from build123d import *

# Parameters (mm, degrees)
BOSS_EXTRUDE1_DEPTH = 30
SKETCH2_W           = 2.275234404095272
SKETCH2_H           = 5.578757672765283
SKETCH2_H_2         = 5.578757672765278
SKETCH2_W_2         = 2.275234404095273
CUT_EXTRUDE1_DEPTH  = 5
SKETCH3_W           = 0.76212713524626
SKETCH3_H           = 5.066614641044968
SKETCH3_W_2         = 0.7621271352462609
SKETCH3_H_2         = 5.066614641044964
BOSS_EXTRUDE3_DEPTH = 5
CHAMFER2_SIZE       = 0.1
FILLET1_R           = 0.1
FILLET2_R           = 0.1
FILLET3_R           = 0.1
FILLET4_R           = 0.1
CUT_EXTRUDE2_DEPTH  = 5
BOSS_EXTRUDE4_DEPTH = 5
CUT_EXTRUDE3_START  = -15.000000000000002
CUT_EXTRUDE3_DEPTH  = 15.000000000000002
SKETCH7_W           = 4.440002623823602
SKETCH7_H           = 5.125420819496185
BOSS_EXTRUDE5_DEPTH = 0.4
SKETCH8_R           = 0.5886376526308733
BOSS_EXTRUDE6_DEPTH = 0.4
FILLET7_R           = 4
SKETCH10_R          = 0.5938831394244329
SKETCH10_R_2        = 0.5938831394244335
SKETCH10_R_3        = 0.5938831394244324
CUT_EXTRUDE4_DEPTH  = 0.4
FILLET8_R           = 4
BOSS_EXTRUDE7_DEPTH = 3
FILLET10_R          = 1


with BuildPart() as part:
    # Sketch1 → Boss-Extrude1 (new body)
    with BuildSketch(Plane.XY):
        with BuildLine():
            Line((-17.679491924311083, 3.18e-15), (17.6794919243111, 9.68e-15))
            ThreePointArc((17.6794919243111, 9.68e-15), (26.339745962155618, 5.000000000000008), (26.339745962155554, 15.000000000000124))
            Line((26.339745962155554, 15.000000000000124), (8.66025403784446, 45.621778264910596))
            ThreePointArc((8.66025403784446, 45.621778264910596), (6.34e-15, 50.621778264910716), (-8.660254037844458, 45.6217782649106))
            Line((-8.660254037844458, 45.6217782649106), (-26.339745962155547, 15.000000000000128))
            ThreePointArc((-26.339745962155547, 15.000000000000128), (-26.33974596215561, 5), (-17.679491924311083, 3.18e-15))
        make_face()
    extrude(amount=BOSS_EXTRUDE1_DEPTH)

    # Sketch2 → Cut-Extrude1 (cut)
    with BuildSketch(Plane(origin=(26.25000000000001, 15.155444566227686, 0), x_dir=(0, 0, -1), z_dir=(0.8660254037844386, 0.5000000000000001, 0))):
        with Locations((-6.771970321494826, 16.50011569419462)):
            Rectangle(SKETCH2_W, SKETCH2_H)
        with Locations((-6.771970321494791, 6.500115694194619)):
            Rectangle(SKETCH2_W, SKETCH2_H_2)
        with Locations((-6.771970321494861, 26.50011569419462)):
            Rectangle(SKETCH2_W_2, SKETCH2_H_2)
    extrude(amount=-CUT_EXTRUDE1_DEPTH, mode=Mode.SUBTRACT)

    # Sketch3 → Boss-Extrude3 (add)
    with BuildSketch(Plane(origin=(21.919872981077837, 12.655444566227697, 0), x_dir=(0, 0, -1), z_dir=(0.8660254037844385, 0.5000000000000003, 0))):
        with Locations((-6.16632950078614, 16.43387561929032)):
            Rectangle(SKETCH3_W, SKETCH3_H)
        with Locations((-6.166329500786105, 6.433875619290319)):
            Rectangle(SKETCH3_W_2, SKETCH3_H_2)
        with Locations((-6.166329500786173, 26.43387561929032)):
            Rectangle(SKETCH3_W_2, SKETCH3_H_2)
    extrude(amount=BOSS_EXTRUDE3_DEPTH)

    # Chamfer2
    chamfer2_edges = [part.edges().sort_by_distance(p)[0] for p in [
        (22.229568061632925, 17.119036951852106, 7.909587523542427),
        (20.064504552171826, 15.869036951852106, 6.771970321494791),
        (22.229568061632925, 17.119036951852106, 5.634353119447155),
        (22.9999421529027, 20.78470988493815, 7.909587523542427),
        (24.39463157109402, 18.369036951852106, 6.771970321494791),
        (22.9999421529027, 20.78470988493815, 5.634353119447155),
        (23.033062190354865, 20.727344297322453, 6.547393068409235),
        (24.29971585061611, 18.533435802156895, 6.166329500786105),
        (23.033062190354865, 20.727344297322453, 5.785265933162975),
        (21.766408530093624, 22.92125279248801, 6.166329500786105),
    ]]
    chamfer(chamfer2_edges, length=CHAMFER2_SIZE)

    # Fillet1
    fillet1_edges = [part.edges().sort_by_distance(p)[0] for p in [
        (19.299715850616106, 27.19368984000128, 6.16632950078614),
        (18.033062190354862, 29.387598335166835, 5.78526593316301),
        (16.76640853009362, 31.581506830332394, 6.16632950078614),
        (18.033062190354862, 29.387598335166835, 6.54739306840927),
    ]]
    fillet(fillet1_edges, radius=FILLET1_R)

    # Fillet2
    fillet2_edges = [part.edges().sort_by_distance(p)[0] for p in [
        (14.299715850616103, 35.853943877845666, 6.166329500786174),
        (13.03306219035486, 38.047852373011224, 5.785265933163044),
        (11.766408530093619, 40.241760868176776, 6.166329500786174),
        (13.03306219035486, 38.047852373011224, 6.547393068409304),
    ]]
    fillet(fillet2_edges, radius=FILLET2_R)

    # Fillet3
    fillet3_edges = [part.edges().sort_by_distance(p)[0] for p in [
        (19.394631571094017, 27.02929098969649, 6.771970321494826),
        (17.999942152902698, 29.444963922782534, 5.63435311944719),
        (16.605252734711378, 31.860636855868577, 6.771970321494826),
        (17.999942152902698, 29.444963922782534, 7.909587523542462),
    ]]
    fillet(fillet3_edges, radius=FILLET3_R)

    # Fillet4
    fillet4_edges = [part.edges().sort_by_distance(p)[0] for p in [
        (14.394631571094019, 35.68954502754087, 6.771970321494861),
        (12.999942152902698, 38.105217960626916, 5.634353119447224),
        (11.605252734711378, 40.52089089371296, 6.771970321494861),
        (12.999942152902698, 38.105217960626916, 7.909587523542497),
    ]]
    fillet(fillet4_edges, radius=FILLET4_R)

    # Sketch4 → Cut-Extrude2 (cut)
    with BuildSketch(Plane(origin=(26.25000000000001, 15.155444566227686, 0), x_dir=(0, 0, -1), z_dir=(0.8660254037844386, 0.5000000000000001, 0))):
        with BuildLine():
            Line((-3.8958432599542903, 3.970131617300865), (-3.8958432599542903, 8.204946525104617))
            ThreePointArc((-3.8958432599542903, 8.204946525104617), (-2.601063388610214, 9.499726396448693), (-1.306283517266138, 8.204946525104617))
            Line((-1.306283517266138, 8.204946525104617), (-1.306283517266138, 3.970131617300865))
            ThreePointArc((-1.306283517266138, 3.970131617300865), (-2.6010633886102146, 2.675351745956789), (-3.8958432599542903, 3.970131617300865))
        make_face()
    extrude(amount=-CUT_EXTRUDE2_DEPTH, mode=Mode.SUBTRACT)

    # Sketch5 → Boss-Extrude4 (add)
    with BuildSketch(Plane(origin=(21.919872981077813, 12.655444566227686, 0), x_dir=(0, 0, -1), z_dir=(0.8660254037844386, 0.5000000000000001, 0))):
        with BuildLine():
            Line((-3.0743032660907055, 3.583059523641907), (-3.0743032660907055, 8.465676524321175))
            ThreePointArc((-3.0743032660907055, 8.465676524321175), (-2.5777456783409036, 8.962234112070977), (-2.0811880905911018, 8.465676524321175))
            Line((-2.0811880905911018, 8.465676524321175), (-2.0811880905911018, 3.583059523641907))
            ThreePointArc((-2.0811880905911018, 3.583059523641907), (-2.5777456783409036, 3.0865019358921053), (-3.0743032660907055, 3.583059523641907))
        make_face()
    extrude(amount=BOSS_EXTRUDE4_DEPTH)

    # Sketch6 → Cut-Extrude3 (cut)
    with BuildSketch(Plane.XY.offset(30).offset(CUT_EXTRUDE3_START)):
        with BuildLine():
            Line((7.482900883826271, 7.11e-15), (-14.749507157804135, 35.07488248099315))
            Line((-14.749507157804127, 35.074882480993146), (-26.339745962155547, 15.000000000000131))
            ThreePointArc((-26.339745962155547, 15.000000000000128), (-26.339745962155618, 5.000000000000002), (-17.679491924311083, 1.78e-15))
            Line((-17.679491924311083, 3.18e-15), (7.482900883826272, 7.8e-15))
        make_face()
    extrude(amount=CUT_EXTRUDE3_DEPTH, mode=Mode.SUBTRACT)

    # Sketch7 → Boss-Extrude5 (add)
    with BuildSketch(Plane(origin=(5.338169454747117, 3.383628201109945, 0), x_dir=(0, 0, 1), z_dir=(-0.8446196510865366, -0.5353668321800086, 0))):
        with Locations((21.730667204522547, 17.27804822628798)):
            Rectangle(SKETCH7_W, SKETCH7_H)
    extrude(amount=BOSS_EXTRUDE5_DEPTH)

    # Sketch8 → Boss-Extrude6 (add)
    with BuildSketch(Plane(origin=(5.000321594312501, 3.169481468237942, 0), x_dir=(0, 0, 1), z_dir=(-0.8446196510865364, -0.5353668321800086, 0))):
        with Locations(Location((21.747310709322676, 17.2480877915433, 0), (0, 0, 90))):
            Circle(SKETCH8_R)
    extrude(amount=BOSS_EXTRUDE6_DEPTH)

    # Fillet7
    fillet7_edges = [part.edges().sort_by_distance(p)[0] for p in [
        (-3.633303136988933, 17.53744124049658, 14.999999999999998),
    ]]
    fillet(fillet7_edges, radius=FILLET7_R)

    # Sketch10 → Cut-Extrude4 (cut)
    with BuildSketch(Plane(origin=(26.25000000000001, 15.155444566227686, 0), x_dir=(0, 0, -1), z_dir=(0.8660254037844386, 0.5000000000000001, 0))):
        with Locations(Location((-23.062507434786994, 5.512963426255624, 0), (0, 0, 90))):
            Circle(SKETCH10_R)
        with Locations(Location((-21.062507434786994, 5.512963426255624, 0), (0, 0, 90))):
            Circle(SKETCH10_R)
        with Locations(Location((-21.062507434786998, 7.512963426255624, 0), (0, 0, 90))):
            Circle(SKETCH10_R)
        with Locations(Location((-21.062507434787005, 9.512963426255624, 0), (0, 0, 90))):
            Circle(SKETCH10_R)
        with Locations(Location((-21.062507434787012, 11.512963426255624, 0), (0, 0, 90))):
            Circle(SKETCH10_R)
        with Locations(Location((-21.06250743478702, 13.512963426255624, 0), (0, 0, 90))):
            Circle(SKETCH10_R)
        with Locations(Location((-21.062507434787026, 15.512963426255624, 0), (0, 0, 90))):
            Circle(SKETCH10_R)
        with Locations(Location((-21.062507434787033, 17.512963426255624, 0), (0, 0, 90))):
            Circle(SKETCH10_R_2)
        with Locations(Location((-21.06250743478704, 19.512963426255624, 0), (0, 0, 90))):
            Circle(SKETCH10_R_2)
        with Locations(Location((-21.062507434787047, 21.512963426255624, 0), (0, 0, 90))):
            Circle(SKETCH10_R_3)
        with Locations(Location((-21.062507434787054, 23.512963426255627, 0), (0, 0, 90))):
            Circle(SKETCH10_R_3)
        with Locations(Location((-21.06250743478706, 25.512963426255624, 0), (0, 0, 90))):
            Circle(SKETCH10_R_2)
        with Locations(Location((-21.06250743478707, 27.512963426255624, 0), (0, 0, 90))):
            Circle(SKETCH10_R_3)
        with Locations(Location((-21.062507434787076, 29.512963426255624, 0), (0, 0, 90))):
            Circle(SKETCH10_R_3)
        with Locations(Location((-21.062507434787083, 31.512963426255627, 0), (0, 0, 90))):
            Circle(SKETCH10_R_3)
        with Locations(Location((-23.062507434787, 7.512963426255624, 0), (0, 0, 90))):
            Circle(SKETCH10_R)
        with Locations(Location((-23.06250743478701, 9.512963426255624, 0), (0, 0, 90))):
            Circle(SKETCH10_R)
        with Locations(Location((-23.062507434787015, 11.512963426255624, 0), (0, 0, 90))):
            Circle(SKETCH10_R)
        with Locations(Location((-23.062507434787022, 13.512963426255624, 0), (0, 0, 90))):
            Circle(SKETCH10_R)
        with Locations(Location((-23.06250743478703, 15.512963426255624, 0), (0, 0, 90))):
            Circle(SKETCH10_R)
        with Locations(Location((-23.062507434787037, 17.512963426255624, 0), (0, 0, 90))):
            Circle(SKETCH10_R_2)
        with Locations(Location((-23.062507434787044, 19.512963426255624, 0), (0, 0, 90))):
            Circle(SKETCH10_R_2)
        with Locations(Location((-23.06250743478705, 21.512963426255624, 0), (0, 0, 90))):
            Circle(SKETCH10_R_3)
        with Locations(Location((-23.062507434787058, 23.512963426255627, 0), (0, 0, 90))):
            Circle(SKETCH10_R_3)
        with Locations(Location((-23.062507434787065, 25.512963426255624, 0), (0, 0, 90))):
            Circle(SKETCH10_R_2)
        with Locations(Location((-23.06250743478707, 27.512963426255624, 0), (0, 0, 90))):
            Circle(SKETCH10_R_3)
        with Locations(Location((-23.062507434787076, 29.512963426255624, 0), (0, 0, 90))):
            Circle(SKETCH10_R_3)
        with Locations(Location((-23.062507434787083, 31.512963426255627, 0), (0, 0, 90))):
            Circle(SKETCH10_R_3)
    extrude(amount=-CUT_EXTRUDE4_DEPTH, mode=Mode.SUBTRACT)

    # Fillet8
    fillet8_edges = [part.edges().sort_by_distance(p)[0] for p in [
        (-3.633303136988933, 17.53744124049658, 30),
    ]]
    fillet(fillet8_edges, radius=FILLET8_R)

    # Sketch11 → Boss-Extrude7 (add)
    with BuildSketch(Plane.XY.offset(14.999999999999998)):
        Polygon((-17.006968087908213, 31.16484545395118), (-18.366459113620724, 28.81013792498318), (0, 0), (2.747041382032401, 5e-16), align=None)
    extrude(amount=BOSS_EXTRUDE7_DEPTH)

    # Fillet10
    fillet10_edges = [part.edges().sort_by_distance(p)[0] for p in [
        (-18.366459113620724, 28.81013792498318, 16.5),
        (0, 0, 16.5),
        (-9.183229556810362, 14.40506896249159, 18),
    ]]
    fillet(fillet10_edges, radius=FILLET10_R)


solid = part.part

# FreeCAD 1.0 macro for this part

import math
import FreeCAD as App
import Part
import Sketcher

V = App.Vector
Q = App.Units.Quantity


def edges_at(feature, points):
    """Names of the edges that pass closest to the given points."""
    edges = feature.Shape.Edges
    near = lambda p: min(range(len(edges)), key=lambda i: edges[i].distToShape(Part.Vertex(*p))[0])
    return sorted({f"Edge{near(p) + 1}" for p in points})


def add_polygon(sketch, points):
    """Adds a closed chain of lines whose ends are joined by coincident constraints."""
    first, n = sketch.GeometryCount, len(points)
    for a, b in zip(points, points[1:] + points[:1]):
        sketch.addGeometry(Part.LineSegment(App.Vector(*a, 0), App.Vector(*b, 0)), False)
    for i in range(n):
        sketch.addConstraint(Sketcher.Constraint("Coincident", first + i, 2, first + (i + 1) % n, 1))

doc = App.newDocument("Part")
body = doc.addObject("PartDesign::Body", "Body")

# Sketch on XY plane
sketch1 = body.newObject("Sketcher::SketchObject", "Sketch")
sketch1.AttachmentSupport = (doc.getObject("XY_Plane"), [""])
sketch1.MapMode = "FlatFace"
sketch1.addGeometry([
    Part.LineSegment(V(-18, 0, 0), V(18, 0, 0)),  # 0
    Part.ArcOfCircle(Part.Circle(V(18, 10, 0), V(0, 0, 1), 10), math.radians(-90), math.radians(30)),  # 1
    Part.LineSegment(V(26, 15, 0), V(9, 46, 0)),  # 2
    Part.ArcOfCircle(Part.Circle(V(0, 41, 0), V(0, 0, 1), 10), math.radians(30), math.radians(150)),  # 3
    Part.LineSegment(V(-9, 46, 0), V(-26, 15, 0)),  # 4
    Part.ArcOfCircle(Part.Circle(V(-18, 10, 0), V(0, 0, 1), 10), math.radians(150), math.radians(270)),  # 5
], False)
sketch1.addConstraint([
    Sketcher.Constraint("Tangent", 0, 2, 1, 1),
    Sketcher.Constraint("Tangent", 1, 2, 2, 1),
    Sketcher.Constraint("Tangent", 2, 2, 3, 1),
    Sketcher.Constraint("Tangent", 3, 2, 4, 1),
    Sketcher.Constraint("Tangent", 4, 2, 5, 1),
    Sketcher.Constraint("Tangent", 5, 2, 0, 1),
    Sketcher.Constraint("Horizontal", 0),
    Sketcher.Constraint("Equal", 1, 3),
    Sketcher.Constraint("Equal", 3, 5),
    Sketcher.Constraint("Symmetric", 0, 2, 5, 2, -1, 1),
    Sketcher.Constraint("PointOnObject", 3, 3, -2),
    Sketcher.Constraint("Radius", 1, Q("10 mm")),
    Sketcher.Constraint("Angle", 2, Q("120 deg")),
    Sketcher.Constraint("DistanceX", 3, 2, 1, 2, Q("35 mm")),
])
pad1 = body.newObject("PartDesign::Pad", "Pad")
pad1.Profile = sketch1
pad1.Length = 30

# Sketch on an angled plane
sketch2 = body.newObject("Sketcher::SketchObject", "Sketch001")
sketch2.Placement = App.Placement(V(26.25, 15.155445, 0), App.Rotation(V(0, 0, -1), V(-0.5, 0.866025404, 0), V(0.866025404, 0.5, 0), "ZXY"))
add_polygon(sketch2, [(-7.9, 19.3), (-7.9, 13.7), (-5.6, 13.7), (-5.6, 19.3)])  # lines 0-3
add_polygon(sketch2, [(-7.9, 9.3), (-7.9, 3.7), (-5.6, 3.7), (-5.6, 9.3)])  # lines 4-7
add_polygon(sketch2, [(-7.9, 29.3), (-7.9, 23.7), (-5.6, 23.7), (-5.6, 29.3)])  # lines 8-11
sketch2.addConstraint([
    Sketcher.Constraint("Vertical", 0),
    Sketcher.Constraint("Horizontal", 1),
    Sketcher.Constraint("Vertical", 2),
    Sketcher.Constraint("Horizontal", 3),
    Sketcher.Constraint("Vertical", 4),
    Sketcher.Constraint("Horizontal", 5),
    Sketcher.Constraint("Vertical", 6),
    Sketcher.Constraint("Horizontal", 7),
    Sketcher.Constraint("Vertical", 8),
    Sketcher.Constraint("Horizontal", 9),
    Sketcher.Constraint("Vertical", 10),
    Sketcher.Constraint("Horizontal", 11),
    Sketcher.Constraint("Vertical", 3, 2, 4, 2),
    Sketcher.Constraint("Vertical", 2, 2, 5, 2),
    Sketcher.Constraint("Vertical", 7, 2, 8, 2),
    Sketcher.Constraint("Vertical", 6, 2, 9, 2),
    Sketcher.Constraint("Equal", 2, 4),
    Sketcher.Constraint("Equal", 6, 8),
    Sketcher.Constraint("DistanceY", 4, 2, 0, 2, Q("10 mm")),
    Sketcher.Constraint("DistanceY", 0, 2, 8, 2, Q("10 mm")),
    Sketcher.Constraint("DistanceX", 1, 1, 1, 2, Q("2.275234 mm")),
    Sketcher.Constraint("DistanceY", 0, 2, 0, 1, Q("5.578758 mm")),
    Sketcher.Constraint("DistanceX", 0, 2, -1, 1, Q("7.909588 mm")),
    Sketcher.Constraint("DistanceY", -1, 1, 0, 2, Q("13.710737 mm")),
])
pocket1 = body.newObject("PartDesign::Pocket", "Pocket")
pocket1.Profile = sketch2
pocket1.Length = 5

# Sketch on an angled plane
sketch3 = body.newObject("Sketcher::SketchObject", "Sketch002")
sketch3.Placement = App.Placement(V(21.919873, 12.655445, 0), App.Rotation(V(0, 0, -1), V(-0.5, 0.866025404, 0), V(0.866025404, 0.5, 0), "ZXY"))
add_polygon(sketch3, [(-6.5, 19), (-6.5, 13.9), (-5.8, 13.9), (-5.8, 19)])  # lines 0-3
add_polygon(sketch3, [(-6.5, 9), (-6.5, 3.9), (-5.8, 3.9), (-5.8, 9)])  # lines 4-7
add_polygon(sketch3, [(-6.5, 29), (-6.5, 23.9), (-5.8, 23.9), (-5.8, 29)])  # lines 8-11
sketch3.addConstraint([
    Sketcher.Constraint("Vertical", 0),
    Sketcher.Constraint("Horizontal", 1),
    Sketcher.Constraint("Vertical", 2),
    Sketcher.Constraint("Horizontal", 3),
    Sketcher.Constraint("Vertical", 4),
    Sketcher.Constraint("Horizontal", 5),
    Sketcher.Constraint("Vertical", 6),
    Sketcher.Constraint("Horizontal", 7),
    Sketcher.Constraint("Vertical", 8),
    Sketcher.Constraint("Horizontal", 9),
    Sketcher.Constraint("Vertical", 10),
    Sketcher.Constraint("Horizontal", 11),
    Sketcher.Constraint("Vertical", 3, 2, 4, 2),
    Sketcher.Constraint("Vertical", 2, 2, 5, 2),
    Sketcher.Constraint("Vertical", 7, 2, 8, 2),
    Sketcher.Constraint("Vertical", 6, 2, 9, 2),
    Sketcher.Constraint("Equal", 2, 4),
    Sketcher.Constraint("Equal", 6, 8),
    Sketcher.Constraint("DistanceY", 4, 2, 0, 2, Q("10 mm")),
    Sketcher.Constraint("DistanceY", 0, 2, 8, 2, Q("10 mm")),
    Sketcher.Constraint("DistanceX", 1, 1, 1, 2, Q("0.762127 mm")),
    Sketcher.Constraint("DistanceY", 0, 2, 0, 1, Q("5.066615 mm")),
    Sketcher.Constraint("DistanceY", -1, 1, 0, 2, Q("13.900568 mm")),
    Sketcher.Constraint("DistanceX", 0, 2, -1, 1, Q("6.547393 mm")),
])
pad2 = body.newObject("PartDesign::Pad", "Pad001")
pad2.Profile = sketch3
pad2.Length = 5
doc.recompute()

chamfer = body.newObject("PartDesign::Chamfer", "Chamfer")
chamfer.Base = (pad2, edges_at(pad2, [
    (22.23, 17.119, 7.91),
    (20.065, 15.869, 6.772),
    (22.23, 17.119, 5.634),
    (23, 20.785, 7.91),
    (24.395, 18.369, 6.772),
    (23, 20.785, 5.634),
    (23.033, 20.727, 6.547),
    (24.3, 18.533, 6.166),
    (23.033, 20.727, 5.785),
    (21.766, 22.921, 6.166),
]))
chamfer.Size = 0.1
doc.recompute()

fillet = body.newObject("PartDesign::Fillet", "Fillet")
fillet.Base = (chamfer, edges_at(chamfer, [
    (19.3, 27.194, 6.166),
    (18.033, 29.388, 5.785),
    (16.766, 31.582, 6.166),
    (18.033, 29.388, 6.547),
]))
fillet.Radius = 0.1
doc.recompute()

fillet2 = body.newObject("PartDesign::Fillet", "Fillet001")
fillet2.Base = (fillet, edges_at(fillet, [
    (14.3, 35.854, 6.166),
    (13.033, 38.048, 5.785),
    (11.766, 40.242, 6.166),
    (13.033, 38.048, 6.547),
]))
fillet2.Radius = 0.1
doc.recompute()

fillet3 = body.newObject("PartDesign::Fillet", "Fillet002")
fillet3.Base = (fillet2, edges_at(fillet2, [
    (19.395, 27.029, 6.772),
    (18, 29.445, 5.634),
    (16.605, 31.861, 6.772),
    (18, 29.445, 7.91),
]))
fillet3.Radius = 0.1
doc.recompute()

fillet4 = body.newObject("PartDesign::Fillet", "Fillet003")
fillet4.Base = (fillet3, edges_at(fillet3, [
    (14.395, 35.69, 6.772),
    (13, 38.105, 5.634),
    (11.605, 40.521, 6.772),
    (13, 38.105, 7.91),
]))
fillet4.Radius = 0.1

# Sketch on an angled plane
sketch4 = body.newObject("Sketcher::SketchObject", "Sketch003")
sketch4.Placement = App.Placement(V(26.25, 15.155445, 0), App.Rotation(V(0, 0, -1), V(-0.5, 0.866025404, 0), V(0.866025404, 0.5, 0), "ZXY"))
sketch4.addGeometry([
    Part.LineSegment(V(-3.9, 8.2, 0), V(-3.9, 4, 0)),
    Part.ArcOfCircle(Part.Circle(V(-2.6, 4, 0), V(0, 0, 1), 1.3), math.radians(180), math.radians(360)),
    Part.LineSegment(V(-1.3, 4, 0), V(-1.3, 8.2, 0)),
    Part.ArcOfCircle(Part.Circle(V(-2.6, 8.2, 0), V(0, 0, 1), 1.3), math.radians(0), math.radians(180)),
], False)
sketch4.addConstraint([
    Sketcher.Constraint("Tangent", 0, 2, 1, 1),
    Sketcher.Constraint("Tangent", 1, 2, 2, 1),
    Sketcher.Constraint("Tangent", 2, 2, 3, 1),
    Sketcher.Constraint("Tangent", 3, 2, 0, 1),
    Sketcher.Constraint("Vertical", 0),
    Sketcher.Constraint("Vertical", 2),
    Sketcher.Constraint("Radius", 1, Q("1.29478 mm")),
    Sketcher.Constraint("DistanceY", 0, 2, 0, 1, Q("4.234815 mm")),
    Sketcher.Constraint("DistanceY", -1, 1, 1, 3, Q("3.970132 mm")),
    Sketcher.Constraint("DistanceX", 1, 3, -1, 1, Q("2.601063 mm")),
])
pocket2 = body.newObject("PartDesign::Pocket", "Pocket001")
pocket2.Profile = sketch4
pocket2.Length = 5

# Sketch on an angled plane
sketch5 = body.newObject("Sketcher::SketchObject", "Sketch004")
sketch5.Placement = App.Placement(V(21.919873, 12.655445, 0), App.Rotation(V(0, 0, -1), V(-0.5, 0.866025404, 0), V(0.866025404, 0.5, 0), "ZXY"))
sketch5.addGeometry([
    Part.LineSegment(V(-3.07, 8.47, 0), V(-3.07, 3.58, 0)),
    Part.ArcOfCircle(Part.Circle(V(-2.58, 3.58, 0), V(0, 0, 1), 0.5), math.radians(180), math.radians(360)),
    Part.LineSegment(V(-2.08, 3.58, 0), V(-2.08, 8.47, 0)),
    Part.ArcOfCircle(Part.Circle(V(-2.58, 8.47, 0), V(0, 0, 1), 0.5), math.radians(0), math.radians(180)),
], False)
sketch5.addConstraint([
    Sketcher.Constraint("Tangent", 0, 2, 1, 1),
    Sketcher.Constraint("Tangent", 1, 2, 2, 1),
    Sketcher.Constraint("Tangent", 2, 2, 3, 1),
    Sketcher.Constraint("Tangent", 3, 2, 0, 1),
    Sketcher.Constraint("Vertical", 0),
    Sketcher.Constraint("Vertical", 2),
    Sketcher.Constraint("Radius", 1, Q("0.496558 mm")),
    Sketcher.Constraint("DistanceY", 0, 2, 0, 1, Q("4.882617 mm")),
    Sketcher.Constraint("DistanceY", -1, 1, 1, 3, Q("3.58306 mm")),
    Sketcher.Constraint("DistanceX", 1, 2, -1, 1, Q("2.081188 mm")),
])
pad3 = body.newObject("PartDesign::Pad", "Pad002")
pad3.Profile = sketch5
pad3.Length = 5

# Sketch on XY plane
sketch6 = body.newObject("Sketcher::SketchObject", "Sketch005")
sketch6.AttachmentSupport = (doc.getObject("XY_Plane"), [""])
sketch6.MapMode = "FlatFace"
sketch6.AttachmentOffset = App.Placement(V(0, 0, 15), App.Rotation())
sketch6.addGeometry([
    Part.LineSegment(V(7, 0, 0), V(-15, 35, 0)),
    Part.LineSegment(V(-15, 35, 0), V(-26, 15, 0)),
    Part.ArcOfCircle(Part.Circle(V(-18, 10, 0), V(0, 0, 1), 10), math.radians(150), math.radians(270)),
    Part.LineSegment(V(-18, 0, 0), V(7, 0, 0)),
], False)
sketch6.addConstraint([
    Sketcher.Constraint("Coincident", 0, 2, 1, 1),
    Sketcher.Constraint("Tangent", 1, 2, 2, 1),
    Sketcher.Constraint("Tangent", 2, 2, 3, 1),
    Sketcher.Constraint("Coincident", 3, 2, 0, 1),
    Sketcher.Constraint("Horizontal", 3),
    Sketcher.Constraint("PointOnObject", 2, 2, -1),
    Sketcher.Constraint("Radius", 2, Q("10 mm")),
    Sketcher.Constraint("Angle", 1, Q("-120 deg")),
    Sketcher.Constraint("DistanceX", -1, 1, 3, 2, Q("7.482901 mm")),
    Sketcher.Constraint("Distance", 0, Q("41.527429 mm")),
    Sketcher.Constraint("DistanceX", 3, 1, 3, 2, Q("25.162393 mm")),
])
pocket3 = body.newObject("PartDesign::Pocket", "Pocket002")
pocket3.Profile = sketch6
pocket3.Length = 15
pocket3.Reversed = True

# Sketch on an angled plane
sketch7 = body.newObject("Sketcher::SketchObject", "Sketch006")
sketch7.Placement = App.Placement(V(5.338169, 3.383628, 0), App.Rotation(V(0, 0, 1), V(-0.535366832, 0.844619651, 0), V(-0.844619651, -0.535366832, 0), "ZXY"))
add_polygon(sketch7, [(19.5, 19.8), (19.5, 14.7), (24, 14.7), (24, 19.8)])  # lines 0-3
sketch7.addConstraint([
    Sketcher.Constraint("Vertical", 0),
    Sketcher.Constraint("Horizontal", 1),
    Sketcher.Constraint("Vertical", 2),
    Sketcher.Constraint("Horizontal", 3),
    Sketcher.Constraint("DistanceY", 0, 2, 0, 1, Q("5.125421 mm")),
    Sketcher.Constraint("DistanceX", 1, 1, 1, 2, Q("4.440003 mm")),
    Sketcher.Constraint("DistanceX", -1, 1, 1, 2, Q("23.950669 mm")),
    Sketcher.Constraint("DistanceY", -1, 1, 2, 2, Q("19.840759 mm")),
])
pad4 = body.newObject("PartDesign::Pad", "Pad003")
pad4.Profile = sketch7
pad4.Length = 0.4

# Sketch on an angled plane
sketch8 = body.newObject("Sketcher::SketchObject", "Sketch007")
sketch8.Placement = App.Placement(V(5.000322, 3.169481, 0), App.Rotation(V(0, 0, 1), V(-0.535366832, 0.844619651, 0), V(-0.844619651, -0.535366832, 0), "ZXY"))
sketch8.addGeometry(Part.Circle(V(21.7, 17.2, 0), V(0, 0, 1), 0.6), False)
sketch8.addConstraint([
    Sketcher.Constraint("Diameter", 0, Q("1.177275 mm")),
    Sketcher.Constraint("DistanceX", -1, 1, 0, 3, Q("21.747311 mm")),
    Sketcher.Constraint("DistanceY", -1, 1, 0, 3, Q("17.248088 mm")),
])
pad5 = body.newObject("PartDesign::Pad", "Pad004")
pad5.Profile = sketch8
pad5.Length = 0.4
doc.recompute()

fillet5 = body.newObject("PartDesign::Fillet", "Fillet004")
fillet5.Base = (pad5, edges_at(pad5, [(-3.633, 17.537, 15)]))
fillet5.Radius = 4

# Sketch on an angled plane
sketch9 = body.newObject("Sketcher::SketchObject", "Sketch008")
sketch9.Placement = App.Placement(V(26.25, 15.155445, 0), App.Rotation(V(0, 0, -1), V(-0.5, 0.866025404, 0), V(0.866025404, 0.5, 0), "ZXY"))
sketch9.addGeometry([
    Part.Circle(V(-23.1, 5.5, 0), V(0, 0, 1), 0.6),  # 0
    Part.Circle(V(-21.1, 5.5, 0), V(0, 0, 1), 0.6),  # 1
    Part.Circle(V(-21.1, 7.5, 0), V(0, 0, 1), 0.6),  # 2
    Part.Circle(V(-21.1, 9.5, 0), V(0, 0, 1), 0.6),  # 3
    Part.Circle(V(-21.1, 11.5, 0), V(0, 0, 1), 0.6),  # 4
    Part.Circle(V(-21.1, 13.5, 0), V(0, 0, 1), 0.6),  # 5
    Part.Circle(V(-21.1, 15.5, 0), V(0, 0, 1), 0.6),  # 6
    Part.Circle(V(-21.1, 17.5, 0), V(0, 0, 1), 0.6),  # 7
    Part.Circle(V(-21.1, 19.5, 0), V(0, 0, 1), 0.6),  # 8
    Part.Circle(V(-21.1, 21.5, 0), V(0, 0, 1), 0.6),  # 9
    Part.Circle(V(-21.1, 23.5, 0), V(0, 0, 1), 0.6),  # 10
    Part.Circle(V(-21.1, 25.5, 0), V(0, 0, 1), 0.6),  # 11
    Part.Circle(V(-21.1, 27.5, 0), V(0, 0, 1), 0.6),  # 12
    Part.Circle(V(-21.1, 29.5, 0), V(0, 0, 1), 0.6),  # 13
    Part.Circle(V(-21.1, 31.5, 0), V(0, 0, 1), 0.6),  # 14
    Part.Circle(V(-23.1, 7.5, 0), V(0, 0, 1), 0.6),  # 15
    Part.Circle(V(-23.1, 9.5, 0), V(0, 0, 1), 0.6),  # 16
    Part.Circle(V(-23.1, 11.5, 0), V(0, 0, 1), 0.6),  # 17
    Part.Circle(V(-23.1, 13.5, 0), V(0, 0, 1), 0.6),  # 18
    Part.Circle(V(-23.1, 15.5, 0), V(0, 0, 1), 0.6),  # 19
    Part.Circle(V(-23.1, 17.5, 0), V(0, 0, 1), 0.6),  # 20
    Part.Circle(V(-23.1, 19.5, 0), V(0, 0, 1), 0.6),  # 21
    Part.Circle(V(-23.1, 21.5, 0), V(0, 0, 1), 0.6),  # 22
    Part.Circle(V(-23.1, 23.5, 0), V(0, 0, 1), 0.6),  # 23
    Part.Circle(V(-23.1, 25.5, 0), V(0, 0, 1), 0.6),  # 24
    Part.Circle(V(-23.1, 27.5, 0), V(0, 0, 1), 0.6),  # 25
    Part.Circle(V(-23.1, 29.5, 0), V(0, 0, 1), 0.6),  # 26
    Part.Circle(V(-23.1, 31.5, 0), V(0, 0, 1), 0.6),  # 27
], False)
sketch9.addConstraint([
    Sketcher.Constraint("Equal", 0, 1),
    Sketcher.Constraint("Equal", 1, 2),
    Sketcher.Constraint("Equal", 2, 3),
    Sketcher.Constraint("Equal", 3, 4),
    Sketcher.Constraint("Equal", 4, 5),
    Sketcher.Constraint("Equal", 5, 6),
    Sketcher.Constraint("Equal", 6, 7),
    Sketcher.Constraint("Equal", 7, 8),
    Sketcher.Constraint("Equal", 8, 9),
    Sketcher.Constraint("Equal", 9, 10),
    Sketcher.Constraint("Equal", 10, 11),
    Sketcher.Constraint("Equal", 11, 12),
    Sketcher.Constraint("Equal", 12, 13),
    Sketcher.Constraint("Equal", 13, 14),
    Sketcher.Constraint("Equal", 14, 15),
    Sketcher.Constraint("Equal", 15, 16),
    Sketcher.Constraint("Equal", 16, 17),
    Sketcher.Constraint("Equal", 17, 18),
    Sketcher.Constraint("Equal", 18, 19),
    Sketcher.Constraint("Equal", 19, 20),
    Sketcher.Constraint("Equal", 20, 21),
    Sketcher.Constraint("Equal", 21, 22),
    Sketcher.Constraint("Equal", 22, 23),
    Sketcher.Constraint("Equal", 23, 24),
    Sketcher.Constraint("Equal", 24, 25),
    Sketcher.Constraint("Equal", 25, 26),
    Sketcher.Constraint("Equal", 26, 27),
    Sketcher.Constraint("Horizontal", 0, 3, 1, 3),
    Sketcher.Constraint("Horizontal", 2, 3, 15, 3),
    Sketcher.Constraint("Horizontal", 3, 3, 16, 3),
    Sketcher.Constraint("Horizontal", 4, 3, 17, 3),
    Sketcher.Constraint("Horizontal", 5, 3, 18, 3),
    Sketcher.Constraint("Horizontal", 6, 3, 19, 3),
    Sketcher.Constraint("Horizontal", 7, 3, 20, 3),
    Sketcher.Constraint("Horizontal", 8, 3, 21, 3),
    Sketcher.Constraint("Horizontal", 9, 3, 22, 3),
    Sketcher.Constraint("Horizontal", 10, 3, 23, 3),
    Sketcher.Constraint("Horizontal", 11, 3, 24, 3),
    Sketcher.Constraint("Horizontal", 12, 3, 25, 3),
    Sketcher.Constraint("Horizontal", 13, 3, 26, 3),
    Sketcher.Constraint("Horizontal", 14, 3, 27, 3),
    Sketcher.Constraint("Vertical", 1, 3, 2, 3),
    Sketcher.Constraint("Vertical", 2, 3, 3, 3),
    Sketcher.Constraint("Vertical", 3, 3, 4, 3),
    Sketcher.Constraint("Vertical", 4, 3, 5, 3),
    Sketcher.Constraint("Vertical", 5, 3, 6, 3),
    Sketcher.Constraint("Vertical", 6, 3, 7, 3),
    Sketcher.Constraint("Vertical", 7, 3, 8, 3),
    Sketcher.Constraint("Vertical", 8, 3, 9, 3),
    Sketcher.Constraint("Vertical", 9, 3, 10, 3),
    Sketcher.Constraint("Vertical", 10, 3, 11, 3),
    Sketcher.Constraint("Vertical", 11, 3, 12, 3),
    Sketcher.Constraint("Vertical", 12, 3, 13, 3),
    Sketcher.Constraint("Vertical", 13, 3, 14, 3),
    Sketcher.Constraint("Vertical", 0, 3, 15, 3),
    Sketcher.Constraint("Vertical", 15, 3, 16, 3),
    Sketcher.Constraint("Vertical", 16, 3, 17, 3),
    Sketcher.Constraint("Vertical", 17, 3, 18, 3),
    Sketcher.Constraint("Vertical", 18, 3, 19, 3),
    Sketcher.Constraint("Vertical", 19, 3, 20, 3),
    Sketcher.Constraint("Vertical", 20, 3, 21, 3),
    Sketcher.Constraint("Vertical", 21, 3, 22, 3),
    Sketcher.Constraint("Vertical", 22, 3, 23, 3),
    Sketcher.Constraint("Vertical", 23, 3, 24, 3),
    Sketcher.Constraint("Vertical", 24, 3, 25, 3),
    Sketcher.Constraint("Vertical", 25, 3, 26, 3),
    Sketcher.Constraint("Vertical", 26, 3, 27, 3),
    Sketcher.Constraint("DistanceX", 0, 3, 1, 3, Q("2 mm")),
    Sketcher.Constraint("DistanceY", 1, 3, 2, 3, Q("2 mm")),
    Sketcher.Constraint("DistanceY", 2, 3, 3, 3, Q("2 mm")),
    Sketcher.Constraint("DistanceY", 3, 3, 4, 3, Q("2 mm")),
    Sketcher.Constraint("DistanceY", 4, 3, 5, 3, Q("2 mm")),
    Sketcher.Constraint("DistanceY", 5, 3, 6, 3, Q("2 mm")),
    Sketcher.Constraint("DistanceY", 6, 3, 7, 3, Q("2 mm")),
    Sketcher.Constraint("DistanceY", 7, 3, 8, 3, Q("2 mm")),
    Sketcher.Constraint("DistanceY", 8, 3, 9, 3, Q("2 mm")),
    Sketcher.Constraint("DistanceY", 9, 3, 10, 3, Q("2 mm")),
    Sketcher.Constraint("DistanceY", 10, 3, 11, 3, Q("2 mm")),
    Sketcher.Constraint("DistanceY", 11, 3, 12, 3, Q("2 mm")),
    Sketcher.Constraint("DistanceY", 12, 3, 13, 3, Q("2 mm")),
    Sketcher.Constraint("DistanceY", 13, 3, 14, 3, Q("2 mm")),
    Sketcher.Constraint("Diameter", 0, Q("1.187766 mm")),
    Sketcher.Constraint("DistanceX", 0, 3, -1, 1, Q("23.062507 mm")),
    Sketcher.Constraint("DistanceY", -1, 1, 0, 3, Q("5.512963 mm")),
])
pocket4 = body.newObject("PartDesign::Pocket", "Pocket003")
pocket4.Profile = sketch9
pocket4.Length = 0.4
doc.recompute()

fillet6 = body.newObject("PartDesign::Fillet", "Fillet005")
fillet6.Base = (pocket4, edges_at(pocket4, [(-3.633, 17.537, 30)]))
fillet6.Radius = 4

# Sketch on XY plane
sketch10 = body.newObject("Sketcher::SketchObject", "Sketch009")
sketch10.AttachmentSupport = (doc.getObject("XY_Plane"), [""])
sketch10.MapMode = "FlatFace"
sketch10.AttachmentOffset = App.Placement(V(0, 0, 15), App.Rotation())
add_polygon(sketch10, [(-17, 31.2), (-18.4, 28.8), (0, 0), (2.7, 0)])  # lines 0-3
sketch10.addConstraint([
    Sketcher.Constraint("Horizontal", 2),
    Sketcher.Constraint("Coincident", 1, 2, -1, 1),
    Sketcher.Constraint("Angle", 0, Q("-120 deg")),
    Sketcher.Constraint("DistanceX", 2, 1, 2, 2, Q("2.747041 mm")),
    Sketcher.Constraint("DistanceX", 0, 2, 2, 2, Q("21.1135 mm")),
    Sketcher.Constraint("DistanceX", 3, 2, -1, 1, Q("17.006968 mm")),
    Sketcher.Constraint("Distance", 1, Q("34.166517 mm")),
])
pad6 = body.newObject("PartDesign::Pad", "Pad005")
pad6.Profile = sketch10
pad6.Length = 3
doc.recompute()

fillet7 = body.newObject("PartDesign::Fillet", "Fillet006")
fillet7.Base = (pad6, edges_at(pad6, [(-18.366, 28.81, 16.5), (0, 0, 16.5), (-9.183, 14.405, 18)]))
fillet7.Radius = 1

doc.recompute()
